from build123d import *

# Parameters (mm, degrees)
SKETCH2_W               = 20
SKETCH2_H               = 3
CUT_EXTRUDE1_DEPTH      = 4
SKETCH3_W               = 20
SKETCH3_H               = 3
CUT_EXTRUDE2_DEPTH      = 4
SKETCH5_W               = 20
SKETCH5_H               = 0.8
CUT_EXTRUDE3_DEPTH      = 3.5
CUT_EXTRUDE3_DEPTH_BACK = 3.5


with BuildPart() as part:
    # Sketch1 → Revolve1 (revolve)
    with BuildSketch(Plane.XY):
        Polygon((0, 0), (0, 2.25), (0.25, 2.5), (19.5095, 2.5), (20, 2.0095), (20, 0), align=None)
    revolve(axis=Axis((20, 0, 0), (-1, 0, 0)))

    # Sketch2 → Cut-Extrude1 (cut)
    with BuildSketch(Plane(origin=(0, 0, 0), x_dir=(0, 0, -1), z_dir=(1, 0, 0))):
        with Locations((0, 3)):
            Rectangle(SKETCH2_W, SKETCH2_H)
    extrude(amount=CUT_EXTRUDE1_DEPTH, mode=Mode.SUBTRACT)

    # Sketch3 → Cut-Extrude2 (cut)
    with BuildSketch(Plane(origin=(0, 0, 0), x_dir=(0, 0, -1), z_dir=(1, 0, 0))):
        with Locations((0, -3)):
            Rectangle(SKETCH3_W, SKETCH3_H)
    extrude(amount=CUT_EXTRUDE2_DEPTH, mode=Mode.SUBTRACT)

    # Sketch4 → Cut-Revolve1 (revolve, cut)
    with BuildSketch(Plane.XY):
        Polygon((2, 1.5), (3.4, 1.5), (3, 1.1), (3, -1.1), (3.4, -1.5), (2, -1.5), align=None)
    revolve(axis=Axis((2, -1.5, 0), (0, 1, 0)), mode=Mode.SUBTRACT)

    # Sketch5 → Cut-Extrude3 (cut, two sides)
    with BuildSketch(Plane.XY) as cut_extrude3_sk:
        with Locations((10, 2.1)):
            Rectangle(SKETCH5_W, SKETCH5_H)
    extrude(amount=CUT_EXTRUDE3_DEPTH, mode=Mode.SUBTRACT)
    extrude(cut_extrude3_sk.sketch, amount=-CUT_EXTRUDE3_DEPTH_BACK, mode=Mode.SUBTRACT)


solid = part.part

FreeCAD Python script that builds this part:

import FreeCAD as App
import Part
import Sketcher
Q = App.Units.Quantity

doc = App.newDocument("Part")
body = doc.addObject("PartDesign::Body", "Body")

# Sketch on XY plane
sketch1 = body.newObject("Sketcher::SketchObject", "Sketch")
sketch1.AttachmentSupport = (doc.getObject("XY_Plane"), [""])
sketch1.MapMode = "FlatFace"
sketch1.addGeometry(Part.LineSegment(App.Vector(0, 2.25, 0), App.Vector(0, 0, 0)), False)
sketch1.addGeometry(Part.LineSegment(App.Vector(0, 0, 0), App.Vector(20, 0, 0)), False)
sketch1.addGeometry(Part.LineSegment(App.Vector(20, 0, 0), App.Vector(20, 2.01, 0)), False)
sketch1.addGeometry(Part.LineSegment(App.Vector(20, 2.01, 0), App.Vector(19.51, 2.5, 0)), False)
sketch1.addGeometry(Part.LineSegment(App.Vector(19.51, 2.5, 0), App.Vector(0.25, 2.5, 0)), False)
sketch1.addGeometry(Part.LineSegment(App.Vector(0.25, 2.5, 0), App.Vector(0, 2.25, 0)), False)
sketch1.addConstraint(Sketcher.Constraint("Coincident", 0, 2, 1, 1))
sketch1.addConstraint(Sketcher.Constraint("Coincident", 1, 2, 2, 1))
sketch1.addConstraint(Sketcher.Constraint("Coincident", 2, 2, 3, 1))
sketch1.addConstraint(Sketcher.Constraint("Coincident", 3, 2, 4, 1))
sketch1.addConstraint(Sketcher.Constraint("Coincident", 4, 2, 5, 1))
sketch1.addConstraint(Sketcher.Constraint("Coincident", 5, 2, 0, 1))
sketch1.addConstraint(Sketcher.Constraint("Vertical", 0))
sketch1.addConstraint(Sketcher.Constraint("Horizontal", 1))
sketch1.addConstraint(Sketcher.Constraint("Vertical", 2))
sketch1.addConstraint(Sketcher.Constraint("Horizontal", 4))
sketch1.addConstraint(Sketcher.Constraint("Coincident", 0, 2, -1, 1))
sketch1.addConstraint(Sketcher.Constraint("Perpendicular", 3, 5))
sketch1.addConstraint(Sketcher.Constraint("DistanceX", 1, 1, 1, 2, Q("20 mm")))
sketch1.addConstraint(Sketcher.Constraint("Angle", 3, Q("135 deg")))
sketch1.addConstraint(Sketcher.Constraint("DistanceY", 0, 2, 0, 1, Q("2.25 mm")))
sketch1.addConstraint(Sketcher.Constraint("DistanceY", -1, 1, 3, 2, Q("2.5 mm")))
sketch1.addConstraint(Sketcher.Constraint("DistanceX", 4, 2, 4, 1, Q("19.2595 mm")))
revolution = body.newObject("PartDesign::Revolution", "Revolution")
revolution.Profile = sketch1
revolution.ReferenceAxis = (sketch1, ["H_Axis"])
revolution.Angle = 360

# Sketch on YZ plane
sketch2 = body.newObject("Sketcher::SketchObject", "Sketch001")
sketch2.AttachmentSupport = (doc.getObject("YZ_Plane"), [""])
sketch2.MapMode = "FlatFace"
sketch2.addGeometry(Part.LineSegment(App.Vector(4.5, 10, 0), App.Vector(1.5, 10, 0)), False)
sketch2.addGeometry(Part.LineSegment(App.Vector(1.5, 10, 0), App.Vector(1.5, -10, 0)), False)
sketch2.addGeometry(Part.LineSegment(App.Vector(1.5, -10, 0), App.Vector(4.5, -10, 0)), False)
sketch2.addGeometry(Part.LineSegment(App.Vector(4.5, -10, 0), App.Vector(4.5, 10, 0)), False)
sketch2.addConstraint(Sketcher.Constraint("Coincident", 0, 2, 1, 1))
sketch2.addConstraint(Sketcher.Constraint("Coincident", 1, 2, 2, 1))
sketch2.addConstraint(Sketcher.Constraint("Coincident", 2, 2, 3, 1))
sketch2.addConstraint(Sketcher.Constraint("Coincident", 3, 2, 0, 1))
sketch2.addConstraint(Sketcher.Constraint("Horizontal", 0))
sketch2.addConstraint(Sketcher.Constraint("Vertical", 1))
sketch2.addConstraint(Sketcher.Constraint("Horizontal", 2))
sketch2.addConstraint(Sketcher.Constraint("Vertical", 3))
sketch2.addConstraint(Sketcher.Constraint("DistanceX", 0, 2, 0, 1, Q("3 mm")))
sketch2.addConstraint(Sketcher.Constraint("DistanceY", 1, 2, 1, 1, Q("20 mm")))
sketch2.addConstraint(Sketcher.Constraint("DistanceY", -1, 1, 0, 2, Q("10 mm")))
sketch2.addConstraint(Sketcher.Constraint("DistanceX", -1, 1, 0, 2, Q("1.5 mm")))
pocket1 = body.newObject("PartDesign::Pocket", "Pocket")
pocket1.Profile = sketch2
pocket1.Length = 4
pocket1.Reversed = True

# Sketch on YZ plane
sketch3 = body.newObject("Sketcher::SketchObject", "Sketch002")
sketch3.AttachmentSupport = (doc.getObject("YZ_Plane"), [""])
sketch3.MapMode = "FlatFace"
sketch3.addGeometry(Part.LineSegment(App.Vector(-1.5, 10, 0), App.Vector(-4.5, 10, 0)), False)
sketch3.addGeometry(Part.LineSegment(App.Vector(-4.5, 10, 0), App.Vector(-4.5, -10, 0)), False)
sketch3.addGeometry(Part.LineSegment(App.Vector(-4.5, -10, 0), App.Vector(-1.5, -10, 0)), False)
sketch3.addGeometry(Part.LineSegment(App.Vector(-1.5, -10, 0), App.Vector(-1.5, 10, 0)), False)
sketch3.addConstraint(Sketcher.Constraint("Coincident", 0, 2, 1, 1))
sketch3.addConstraint(Sketcher.Constraint("Coincident", 1, 2, 2, 1))
sketch3.addConstraint(Sketcher.Constraint("Coincident", 2, 2, 3, 1))
sketch3.addConstraint(Sketcher.Constraint("Coincident", 3, 2, 0, 1))
sketch3.addConstraint(Sketcher.Constraint("Horizontal", 0))
sketch3.addConstraint(Sketcher.Constraint("Vertical", 1))
sketch3.addConstraint(Sketcher.Constraint("Horizontal", 2))
sketch3.addConstraint(Sketcher.Constraint("Vertical", 3))
sketch3.addConstraint(Sketcher.Constraint("DistanceX", 0, 2, 0, 1, Q("3 mm")))
sketch3.addConstraint(Sketcher.Constraint("DistanceY", 1, 2, 1, 1, Q("20 mm")))
sketch3.addConstraint(Sketcher.Constraint("DistanceY", -1, 1, 0, 2, Q("10 mm")))
sketch3.addConstraint(Sketcher.Constraint("DistanceX", 0, 2, -1, 1, Q("4.5 mm")))
pocket2 = body.newObject("PartDesign::Pocket", "Pocket001")
pocket2.Profile = sketch3
pocket2.Length = 4
pocket2.Reversed = True

# Sketch on XY plane
sketch4 = body.newObject("Sketcher::SketchObject", "Sketch003")
sketch4.AttachmentSupport = (doc.getObject("XY_Plane"), [""])
sketch4.MapMode = "FlatFace"
sketch4.addGeometry(Part.LineSegment(App.Vector(3.4, 1.5, 0), App.Vector(2, 1.5, 0)), False)
sketch4.addGeometry(Part.LineSegment(App.Vector(2, 1.5, 0), App.Vector(2, -1.5, 0)), False)
sketch4.addGeometry(Part.LineSegment(App.Vector(2, -1.5, 0), App.Vector(3.4, -1.5, 0)), False)
sketch4.addGeometry(Part.LineSegment(App.Vector(3.4, -1.5, 0), App.Vector(3, -1.1, 0)), False)
sketch4.addGeometry(Part.LineSegment(App.Vector(3, -1.1, 0), App.Vector(3, 1.1, 0)), False)
sketch4.addGeometry(Part.LineSegment(App.Vector(3, 1.1, 0), App.Vector(3.4, 1.5, 0)), False)
sketch4.addGeometry(Part.LineSegment(App.Vector(2, -1.5, 0), App.Vector(2, 1.5, 0)), True)  # axis
sketch4.addConstraint(Sketcher.Constraint("Coincident", 0, 2, 1, 1))
sketch4.addConstraint(Sketcher.Constraint("Coincident", 1, 2, 2, 1))
sketch4.addConstraint(Sketcher.Constraint("Coincident", 2, 2, 3, 1))
sketch4.addConstraint(Sketcher.Constraint("Coincident", 3, 2, 4, 1))
sketch4.addConstraint(Sketcher.Constraint("Coincident", 4, 2, 5, 1))
sketch4.addConstraint(Sketcher.Constraint("Coincident", 5, 2, 0, 1))
sketch4.addConstraint(Sketcher.Constraint("Horizontal", 0))
sketch4.addConstraint(Sketcher.Constraint("Vertical", 1))
sketch4.addConstraint(Sketcher.Constraint("Horizontal", 2))
sketch4.addConstraint(Sketcher.Constraint("Vertical", 4))
sketch4.addConstraint(Sketcher.Constraint("Vertical", 6))
sketch4.addConstraint(Sketcher.Constraint("Coincident", 6, 1, 1, 2))
sketch4.addConstraint(Sketcher.Constraint("Symmetric", 2, 2, 5, 2, -1))
sketch4.addConstraint(Sketcher.Constraint("Perpendicular", 3, 5))
sketch4.addConstraint(Sketcher.Constraint("Horizontal", 5, 2, 6, 2))
sketch4.addConstraint(Sketcher.Constraint("Equal", 3, 5))
sketch4.addConstraint(Sketcher.Constraint("DistanceY", 1, 2, 1, 1, Q("3 mm")))
sketch4.addConstraint(Sketcher.Constraint("DistanceX", 0, 2, 0, 1, Q("1.4 mm")))
sketch4.addConstraint(Sketcher.Constraint("DistanceY", 4, 1, 4, 2, Q("2.2 mm")))
sketch4.addConstraint(Sketcher.Constraint("DistanceX", -1, 1, 0, 2, Q("2 mm")))
groove = body.newObject("PartDesign::Groove", "Groove")
groove.Profile = sketch4
groove.ReferenceAxis = (sketch4, ["Axis0"])
groove.Angle = 360

# Sketch on XY plane
sketch5 = body.newObject("Sketcher::SketchObject", "Sketch004")
sketch5.AttachmentSupport = (doc.getObject("XY_Plane"), [""])
sketch5.MapMode = "FlatFace"
sketch5.addGeometry(Part.LineSegment(App.Vector(0, 2.5, 0), App.Vector(0, 1.7, 0)), False)
sketch5.addGeometry(Part.LineSegment(App.Vector(0, 1.7, 0), App.Vector(20, 1.7, 0)), False)
sketch5.addGeometry(Part.LineSegment(App.Vector(20, 1.7, 0), App.Vector(20, 2.5, 0)), False)
sketch5.addGeometry(Part.LineSegment(App.Vector(20, 2.5, 0), App.Vector(0, 2.5, 0)), False)
sketch5.addConstraint(Sketcher.Constraint("Coincident", 0, 2, 1, 1))
sketch5.addConstraint(Sketcher.Constraint("Coincident", 1, 2, 2, 1))
sketch5.addConstraint(Sketcher.Constraint("Coincident", 2, 2, 3, 1))
sketch5.addConstraint(Sketcher.Constraint("Coincident", 3, 2, 0, 1))
sketch5.addConstraint(Sketcher.Constraint("Vertical", 0))
sketch5.addConstraint(Sketcher.Constraint("Horizontal", 1))
sketch5.addConstraint(Sketcher.Constraint("Vertical", 2))
sketch5.addConstraint(Sketcher.Constraint("Horizontal", 3))
sketch5.addConstraint(Sketcher.Constraint("PointOnObject", 0, 2, -2))
sketch5.addConstraint(Sketcher.Constraint("DistanceX", 1, 1, 1, 2, Q("20 mm")))
sketch5.addConstraint(Sketcher.Constraint("DistanceY", 0, 2, 0, 1, Q("0.8 mm")))
sketch5.addConstraint(Sketcher.Constraint("DistanceY", -1, 1, 0, 2, Q("1.7 mm")))
pocket3 = body.newObject("PartDesign::Pocket", "Pocket002")
pocket3.Profile = sketch5
pocket3.Type = "ThroughAll"
pocket3.Midplane = True

doc.recompute()
